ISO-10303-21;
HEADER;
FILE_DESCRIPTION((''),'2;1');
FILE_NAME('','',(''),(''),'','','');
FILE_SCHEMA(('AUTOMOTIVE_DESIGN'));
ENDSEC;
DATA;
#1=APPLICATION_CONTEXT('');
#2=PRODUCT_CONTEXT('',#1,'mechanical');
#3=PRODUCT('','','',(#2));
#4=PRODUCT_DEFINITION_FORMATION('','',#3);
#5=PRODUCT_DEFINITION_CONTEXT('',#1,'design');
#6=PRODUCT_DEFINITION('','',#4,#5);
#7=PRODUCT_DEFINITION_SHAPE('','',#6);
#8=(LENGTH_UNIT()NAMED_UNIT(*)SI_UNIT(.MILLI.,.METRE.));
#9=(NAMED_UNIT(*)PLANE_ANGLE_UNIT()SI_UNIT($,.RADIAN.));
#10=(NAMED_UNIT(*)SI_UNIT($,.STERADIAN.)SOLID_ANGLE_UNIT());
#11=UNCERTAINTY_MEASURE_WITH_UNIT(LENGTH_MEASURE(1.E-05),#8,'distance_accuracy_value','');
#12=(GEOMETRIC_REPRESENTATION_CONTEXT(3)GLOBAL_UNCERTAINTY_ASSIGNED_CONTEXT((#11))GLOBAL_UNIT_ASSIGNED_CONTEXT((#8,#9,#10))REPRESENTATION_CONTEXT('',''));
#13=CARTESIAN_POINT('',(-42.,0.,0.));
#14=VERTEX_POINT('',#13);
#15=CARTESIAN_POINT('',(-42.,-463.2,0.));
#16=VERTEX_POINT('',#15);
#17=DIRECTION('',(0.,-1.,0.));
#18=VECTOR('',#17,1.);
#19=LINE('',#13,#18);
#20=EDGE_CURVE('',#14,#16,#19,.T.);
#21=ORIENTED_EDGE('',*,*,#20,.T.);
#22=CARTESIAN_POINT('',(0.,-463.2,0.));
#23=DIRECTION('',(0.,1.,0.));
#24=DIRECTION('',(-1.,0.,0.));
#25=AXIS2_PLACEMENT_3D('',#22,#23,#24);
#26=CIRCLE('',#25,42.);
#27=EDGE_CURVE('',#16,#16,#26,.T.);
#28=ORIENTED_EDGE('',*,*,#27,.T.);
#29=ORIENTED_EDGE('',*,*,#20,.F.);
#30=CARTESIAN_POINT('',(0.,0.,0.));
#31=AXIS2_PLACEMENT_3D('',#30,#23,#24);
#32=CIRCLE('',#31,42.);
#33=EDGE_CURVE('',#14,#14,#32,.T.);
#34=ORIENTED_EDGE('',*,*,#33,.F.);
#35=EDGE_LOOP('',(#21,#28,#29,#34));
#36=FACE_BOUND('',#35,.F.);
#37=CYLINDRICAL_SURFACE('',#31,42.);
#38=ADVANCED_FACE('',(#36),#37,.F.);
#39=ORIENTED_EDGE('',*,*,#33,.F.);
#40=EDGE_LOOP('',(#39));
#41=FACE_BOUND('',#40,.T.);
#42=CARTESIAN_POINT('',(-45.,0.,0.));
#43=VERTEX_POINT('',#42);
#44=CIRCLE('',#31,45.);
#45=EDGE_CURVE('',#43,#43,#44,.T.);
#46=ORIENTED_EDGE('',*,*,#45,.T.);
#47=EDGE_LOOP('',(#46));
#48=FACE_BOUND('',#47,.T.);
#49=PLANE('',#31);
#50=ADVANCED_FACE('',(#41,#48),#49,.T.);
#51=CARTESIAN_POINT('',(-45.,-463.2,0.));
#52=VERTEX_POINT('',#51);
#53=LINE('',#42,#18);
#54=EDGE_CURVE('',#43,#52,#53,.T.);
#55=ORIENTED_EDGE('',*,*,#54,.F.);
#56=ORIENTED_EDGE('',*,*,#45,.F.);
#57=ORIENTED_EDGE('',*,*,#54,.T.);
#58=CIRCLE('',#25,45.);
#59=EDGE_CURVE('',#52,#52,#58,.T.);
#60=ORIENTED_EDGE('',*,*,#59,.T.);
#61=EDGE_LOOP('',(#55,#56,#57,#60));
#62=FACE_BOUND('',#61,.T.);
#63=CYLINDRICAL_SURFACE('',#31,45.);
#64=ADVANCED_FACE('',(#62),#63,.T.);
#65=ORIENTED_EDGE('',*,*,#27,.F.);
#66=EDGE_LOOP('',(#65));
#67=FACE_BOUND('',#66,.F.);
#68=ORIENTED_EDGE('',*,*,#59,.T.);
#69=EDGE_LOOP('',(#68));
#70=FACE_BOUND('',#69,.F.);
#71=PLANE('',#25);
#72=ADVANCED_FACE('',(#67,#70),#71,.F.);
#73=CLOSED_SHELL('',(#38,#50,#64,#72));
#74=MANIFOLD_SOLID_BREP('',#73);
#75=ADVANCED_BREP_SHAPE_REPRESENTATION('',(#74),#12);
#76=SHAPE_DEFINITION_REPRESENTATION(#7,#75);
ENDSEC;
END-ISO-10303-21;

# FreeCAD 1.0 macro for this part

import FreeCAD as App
import Part
import Sketcher
from FreeCAD import Vector
Q = App.Units.Quantity

doc = App.newDocument("Part")
body = doc.addObject("PartDesign::Body", "Body")

# Sketch on XZ plane
sketch1 = body.newObject("Sketcher::SketchObject", "Sketch")
sketch1.AttachmentSupport = (doc.getObject("XZ_Plane"), [""])
sketch1.MapMode = "FlatFace"
sketch1.addGeometry([
    Part.Circle(Vector(0, 0, 0), Vector(0, 0, 1), 45),
    Part.Circle(Vector(0, 0, 0), Vector(0, 0, 1), 42),
], False)
sketch1.addConstraint([
    Sketcher.Constraint("Coincident", 0, 3, -1, 1),
    Sketcher.Constraint("Coincident", 1, 3, -1, 1),
    Sketcher.Constraint("Diameter", 0, Q("90 mm")),
    Sketcher.Constraint("Diameter", 1, Q("84 mm")),
])
pad1 = body.newObject("PartDesign::Pad", "Pad")
pad1.Profile = sketch1
pad1.Length = 463.2

doc.recompute()
